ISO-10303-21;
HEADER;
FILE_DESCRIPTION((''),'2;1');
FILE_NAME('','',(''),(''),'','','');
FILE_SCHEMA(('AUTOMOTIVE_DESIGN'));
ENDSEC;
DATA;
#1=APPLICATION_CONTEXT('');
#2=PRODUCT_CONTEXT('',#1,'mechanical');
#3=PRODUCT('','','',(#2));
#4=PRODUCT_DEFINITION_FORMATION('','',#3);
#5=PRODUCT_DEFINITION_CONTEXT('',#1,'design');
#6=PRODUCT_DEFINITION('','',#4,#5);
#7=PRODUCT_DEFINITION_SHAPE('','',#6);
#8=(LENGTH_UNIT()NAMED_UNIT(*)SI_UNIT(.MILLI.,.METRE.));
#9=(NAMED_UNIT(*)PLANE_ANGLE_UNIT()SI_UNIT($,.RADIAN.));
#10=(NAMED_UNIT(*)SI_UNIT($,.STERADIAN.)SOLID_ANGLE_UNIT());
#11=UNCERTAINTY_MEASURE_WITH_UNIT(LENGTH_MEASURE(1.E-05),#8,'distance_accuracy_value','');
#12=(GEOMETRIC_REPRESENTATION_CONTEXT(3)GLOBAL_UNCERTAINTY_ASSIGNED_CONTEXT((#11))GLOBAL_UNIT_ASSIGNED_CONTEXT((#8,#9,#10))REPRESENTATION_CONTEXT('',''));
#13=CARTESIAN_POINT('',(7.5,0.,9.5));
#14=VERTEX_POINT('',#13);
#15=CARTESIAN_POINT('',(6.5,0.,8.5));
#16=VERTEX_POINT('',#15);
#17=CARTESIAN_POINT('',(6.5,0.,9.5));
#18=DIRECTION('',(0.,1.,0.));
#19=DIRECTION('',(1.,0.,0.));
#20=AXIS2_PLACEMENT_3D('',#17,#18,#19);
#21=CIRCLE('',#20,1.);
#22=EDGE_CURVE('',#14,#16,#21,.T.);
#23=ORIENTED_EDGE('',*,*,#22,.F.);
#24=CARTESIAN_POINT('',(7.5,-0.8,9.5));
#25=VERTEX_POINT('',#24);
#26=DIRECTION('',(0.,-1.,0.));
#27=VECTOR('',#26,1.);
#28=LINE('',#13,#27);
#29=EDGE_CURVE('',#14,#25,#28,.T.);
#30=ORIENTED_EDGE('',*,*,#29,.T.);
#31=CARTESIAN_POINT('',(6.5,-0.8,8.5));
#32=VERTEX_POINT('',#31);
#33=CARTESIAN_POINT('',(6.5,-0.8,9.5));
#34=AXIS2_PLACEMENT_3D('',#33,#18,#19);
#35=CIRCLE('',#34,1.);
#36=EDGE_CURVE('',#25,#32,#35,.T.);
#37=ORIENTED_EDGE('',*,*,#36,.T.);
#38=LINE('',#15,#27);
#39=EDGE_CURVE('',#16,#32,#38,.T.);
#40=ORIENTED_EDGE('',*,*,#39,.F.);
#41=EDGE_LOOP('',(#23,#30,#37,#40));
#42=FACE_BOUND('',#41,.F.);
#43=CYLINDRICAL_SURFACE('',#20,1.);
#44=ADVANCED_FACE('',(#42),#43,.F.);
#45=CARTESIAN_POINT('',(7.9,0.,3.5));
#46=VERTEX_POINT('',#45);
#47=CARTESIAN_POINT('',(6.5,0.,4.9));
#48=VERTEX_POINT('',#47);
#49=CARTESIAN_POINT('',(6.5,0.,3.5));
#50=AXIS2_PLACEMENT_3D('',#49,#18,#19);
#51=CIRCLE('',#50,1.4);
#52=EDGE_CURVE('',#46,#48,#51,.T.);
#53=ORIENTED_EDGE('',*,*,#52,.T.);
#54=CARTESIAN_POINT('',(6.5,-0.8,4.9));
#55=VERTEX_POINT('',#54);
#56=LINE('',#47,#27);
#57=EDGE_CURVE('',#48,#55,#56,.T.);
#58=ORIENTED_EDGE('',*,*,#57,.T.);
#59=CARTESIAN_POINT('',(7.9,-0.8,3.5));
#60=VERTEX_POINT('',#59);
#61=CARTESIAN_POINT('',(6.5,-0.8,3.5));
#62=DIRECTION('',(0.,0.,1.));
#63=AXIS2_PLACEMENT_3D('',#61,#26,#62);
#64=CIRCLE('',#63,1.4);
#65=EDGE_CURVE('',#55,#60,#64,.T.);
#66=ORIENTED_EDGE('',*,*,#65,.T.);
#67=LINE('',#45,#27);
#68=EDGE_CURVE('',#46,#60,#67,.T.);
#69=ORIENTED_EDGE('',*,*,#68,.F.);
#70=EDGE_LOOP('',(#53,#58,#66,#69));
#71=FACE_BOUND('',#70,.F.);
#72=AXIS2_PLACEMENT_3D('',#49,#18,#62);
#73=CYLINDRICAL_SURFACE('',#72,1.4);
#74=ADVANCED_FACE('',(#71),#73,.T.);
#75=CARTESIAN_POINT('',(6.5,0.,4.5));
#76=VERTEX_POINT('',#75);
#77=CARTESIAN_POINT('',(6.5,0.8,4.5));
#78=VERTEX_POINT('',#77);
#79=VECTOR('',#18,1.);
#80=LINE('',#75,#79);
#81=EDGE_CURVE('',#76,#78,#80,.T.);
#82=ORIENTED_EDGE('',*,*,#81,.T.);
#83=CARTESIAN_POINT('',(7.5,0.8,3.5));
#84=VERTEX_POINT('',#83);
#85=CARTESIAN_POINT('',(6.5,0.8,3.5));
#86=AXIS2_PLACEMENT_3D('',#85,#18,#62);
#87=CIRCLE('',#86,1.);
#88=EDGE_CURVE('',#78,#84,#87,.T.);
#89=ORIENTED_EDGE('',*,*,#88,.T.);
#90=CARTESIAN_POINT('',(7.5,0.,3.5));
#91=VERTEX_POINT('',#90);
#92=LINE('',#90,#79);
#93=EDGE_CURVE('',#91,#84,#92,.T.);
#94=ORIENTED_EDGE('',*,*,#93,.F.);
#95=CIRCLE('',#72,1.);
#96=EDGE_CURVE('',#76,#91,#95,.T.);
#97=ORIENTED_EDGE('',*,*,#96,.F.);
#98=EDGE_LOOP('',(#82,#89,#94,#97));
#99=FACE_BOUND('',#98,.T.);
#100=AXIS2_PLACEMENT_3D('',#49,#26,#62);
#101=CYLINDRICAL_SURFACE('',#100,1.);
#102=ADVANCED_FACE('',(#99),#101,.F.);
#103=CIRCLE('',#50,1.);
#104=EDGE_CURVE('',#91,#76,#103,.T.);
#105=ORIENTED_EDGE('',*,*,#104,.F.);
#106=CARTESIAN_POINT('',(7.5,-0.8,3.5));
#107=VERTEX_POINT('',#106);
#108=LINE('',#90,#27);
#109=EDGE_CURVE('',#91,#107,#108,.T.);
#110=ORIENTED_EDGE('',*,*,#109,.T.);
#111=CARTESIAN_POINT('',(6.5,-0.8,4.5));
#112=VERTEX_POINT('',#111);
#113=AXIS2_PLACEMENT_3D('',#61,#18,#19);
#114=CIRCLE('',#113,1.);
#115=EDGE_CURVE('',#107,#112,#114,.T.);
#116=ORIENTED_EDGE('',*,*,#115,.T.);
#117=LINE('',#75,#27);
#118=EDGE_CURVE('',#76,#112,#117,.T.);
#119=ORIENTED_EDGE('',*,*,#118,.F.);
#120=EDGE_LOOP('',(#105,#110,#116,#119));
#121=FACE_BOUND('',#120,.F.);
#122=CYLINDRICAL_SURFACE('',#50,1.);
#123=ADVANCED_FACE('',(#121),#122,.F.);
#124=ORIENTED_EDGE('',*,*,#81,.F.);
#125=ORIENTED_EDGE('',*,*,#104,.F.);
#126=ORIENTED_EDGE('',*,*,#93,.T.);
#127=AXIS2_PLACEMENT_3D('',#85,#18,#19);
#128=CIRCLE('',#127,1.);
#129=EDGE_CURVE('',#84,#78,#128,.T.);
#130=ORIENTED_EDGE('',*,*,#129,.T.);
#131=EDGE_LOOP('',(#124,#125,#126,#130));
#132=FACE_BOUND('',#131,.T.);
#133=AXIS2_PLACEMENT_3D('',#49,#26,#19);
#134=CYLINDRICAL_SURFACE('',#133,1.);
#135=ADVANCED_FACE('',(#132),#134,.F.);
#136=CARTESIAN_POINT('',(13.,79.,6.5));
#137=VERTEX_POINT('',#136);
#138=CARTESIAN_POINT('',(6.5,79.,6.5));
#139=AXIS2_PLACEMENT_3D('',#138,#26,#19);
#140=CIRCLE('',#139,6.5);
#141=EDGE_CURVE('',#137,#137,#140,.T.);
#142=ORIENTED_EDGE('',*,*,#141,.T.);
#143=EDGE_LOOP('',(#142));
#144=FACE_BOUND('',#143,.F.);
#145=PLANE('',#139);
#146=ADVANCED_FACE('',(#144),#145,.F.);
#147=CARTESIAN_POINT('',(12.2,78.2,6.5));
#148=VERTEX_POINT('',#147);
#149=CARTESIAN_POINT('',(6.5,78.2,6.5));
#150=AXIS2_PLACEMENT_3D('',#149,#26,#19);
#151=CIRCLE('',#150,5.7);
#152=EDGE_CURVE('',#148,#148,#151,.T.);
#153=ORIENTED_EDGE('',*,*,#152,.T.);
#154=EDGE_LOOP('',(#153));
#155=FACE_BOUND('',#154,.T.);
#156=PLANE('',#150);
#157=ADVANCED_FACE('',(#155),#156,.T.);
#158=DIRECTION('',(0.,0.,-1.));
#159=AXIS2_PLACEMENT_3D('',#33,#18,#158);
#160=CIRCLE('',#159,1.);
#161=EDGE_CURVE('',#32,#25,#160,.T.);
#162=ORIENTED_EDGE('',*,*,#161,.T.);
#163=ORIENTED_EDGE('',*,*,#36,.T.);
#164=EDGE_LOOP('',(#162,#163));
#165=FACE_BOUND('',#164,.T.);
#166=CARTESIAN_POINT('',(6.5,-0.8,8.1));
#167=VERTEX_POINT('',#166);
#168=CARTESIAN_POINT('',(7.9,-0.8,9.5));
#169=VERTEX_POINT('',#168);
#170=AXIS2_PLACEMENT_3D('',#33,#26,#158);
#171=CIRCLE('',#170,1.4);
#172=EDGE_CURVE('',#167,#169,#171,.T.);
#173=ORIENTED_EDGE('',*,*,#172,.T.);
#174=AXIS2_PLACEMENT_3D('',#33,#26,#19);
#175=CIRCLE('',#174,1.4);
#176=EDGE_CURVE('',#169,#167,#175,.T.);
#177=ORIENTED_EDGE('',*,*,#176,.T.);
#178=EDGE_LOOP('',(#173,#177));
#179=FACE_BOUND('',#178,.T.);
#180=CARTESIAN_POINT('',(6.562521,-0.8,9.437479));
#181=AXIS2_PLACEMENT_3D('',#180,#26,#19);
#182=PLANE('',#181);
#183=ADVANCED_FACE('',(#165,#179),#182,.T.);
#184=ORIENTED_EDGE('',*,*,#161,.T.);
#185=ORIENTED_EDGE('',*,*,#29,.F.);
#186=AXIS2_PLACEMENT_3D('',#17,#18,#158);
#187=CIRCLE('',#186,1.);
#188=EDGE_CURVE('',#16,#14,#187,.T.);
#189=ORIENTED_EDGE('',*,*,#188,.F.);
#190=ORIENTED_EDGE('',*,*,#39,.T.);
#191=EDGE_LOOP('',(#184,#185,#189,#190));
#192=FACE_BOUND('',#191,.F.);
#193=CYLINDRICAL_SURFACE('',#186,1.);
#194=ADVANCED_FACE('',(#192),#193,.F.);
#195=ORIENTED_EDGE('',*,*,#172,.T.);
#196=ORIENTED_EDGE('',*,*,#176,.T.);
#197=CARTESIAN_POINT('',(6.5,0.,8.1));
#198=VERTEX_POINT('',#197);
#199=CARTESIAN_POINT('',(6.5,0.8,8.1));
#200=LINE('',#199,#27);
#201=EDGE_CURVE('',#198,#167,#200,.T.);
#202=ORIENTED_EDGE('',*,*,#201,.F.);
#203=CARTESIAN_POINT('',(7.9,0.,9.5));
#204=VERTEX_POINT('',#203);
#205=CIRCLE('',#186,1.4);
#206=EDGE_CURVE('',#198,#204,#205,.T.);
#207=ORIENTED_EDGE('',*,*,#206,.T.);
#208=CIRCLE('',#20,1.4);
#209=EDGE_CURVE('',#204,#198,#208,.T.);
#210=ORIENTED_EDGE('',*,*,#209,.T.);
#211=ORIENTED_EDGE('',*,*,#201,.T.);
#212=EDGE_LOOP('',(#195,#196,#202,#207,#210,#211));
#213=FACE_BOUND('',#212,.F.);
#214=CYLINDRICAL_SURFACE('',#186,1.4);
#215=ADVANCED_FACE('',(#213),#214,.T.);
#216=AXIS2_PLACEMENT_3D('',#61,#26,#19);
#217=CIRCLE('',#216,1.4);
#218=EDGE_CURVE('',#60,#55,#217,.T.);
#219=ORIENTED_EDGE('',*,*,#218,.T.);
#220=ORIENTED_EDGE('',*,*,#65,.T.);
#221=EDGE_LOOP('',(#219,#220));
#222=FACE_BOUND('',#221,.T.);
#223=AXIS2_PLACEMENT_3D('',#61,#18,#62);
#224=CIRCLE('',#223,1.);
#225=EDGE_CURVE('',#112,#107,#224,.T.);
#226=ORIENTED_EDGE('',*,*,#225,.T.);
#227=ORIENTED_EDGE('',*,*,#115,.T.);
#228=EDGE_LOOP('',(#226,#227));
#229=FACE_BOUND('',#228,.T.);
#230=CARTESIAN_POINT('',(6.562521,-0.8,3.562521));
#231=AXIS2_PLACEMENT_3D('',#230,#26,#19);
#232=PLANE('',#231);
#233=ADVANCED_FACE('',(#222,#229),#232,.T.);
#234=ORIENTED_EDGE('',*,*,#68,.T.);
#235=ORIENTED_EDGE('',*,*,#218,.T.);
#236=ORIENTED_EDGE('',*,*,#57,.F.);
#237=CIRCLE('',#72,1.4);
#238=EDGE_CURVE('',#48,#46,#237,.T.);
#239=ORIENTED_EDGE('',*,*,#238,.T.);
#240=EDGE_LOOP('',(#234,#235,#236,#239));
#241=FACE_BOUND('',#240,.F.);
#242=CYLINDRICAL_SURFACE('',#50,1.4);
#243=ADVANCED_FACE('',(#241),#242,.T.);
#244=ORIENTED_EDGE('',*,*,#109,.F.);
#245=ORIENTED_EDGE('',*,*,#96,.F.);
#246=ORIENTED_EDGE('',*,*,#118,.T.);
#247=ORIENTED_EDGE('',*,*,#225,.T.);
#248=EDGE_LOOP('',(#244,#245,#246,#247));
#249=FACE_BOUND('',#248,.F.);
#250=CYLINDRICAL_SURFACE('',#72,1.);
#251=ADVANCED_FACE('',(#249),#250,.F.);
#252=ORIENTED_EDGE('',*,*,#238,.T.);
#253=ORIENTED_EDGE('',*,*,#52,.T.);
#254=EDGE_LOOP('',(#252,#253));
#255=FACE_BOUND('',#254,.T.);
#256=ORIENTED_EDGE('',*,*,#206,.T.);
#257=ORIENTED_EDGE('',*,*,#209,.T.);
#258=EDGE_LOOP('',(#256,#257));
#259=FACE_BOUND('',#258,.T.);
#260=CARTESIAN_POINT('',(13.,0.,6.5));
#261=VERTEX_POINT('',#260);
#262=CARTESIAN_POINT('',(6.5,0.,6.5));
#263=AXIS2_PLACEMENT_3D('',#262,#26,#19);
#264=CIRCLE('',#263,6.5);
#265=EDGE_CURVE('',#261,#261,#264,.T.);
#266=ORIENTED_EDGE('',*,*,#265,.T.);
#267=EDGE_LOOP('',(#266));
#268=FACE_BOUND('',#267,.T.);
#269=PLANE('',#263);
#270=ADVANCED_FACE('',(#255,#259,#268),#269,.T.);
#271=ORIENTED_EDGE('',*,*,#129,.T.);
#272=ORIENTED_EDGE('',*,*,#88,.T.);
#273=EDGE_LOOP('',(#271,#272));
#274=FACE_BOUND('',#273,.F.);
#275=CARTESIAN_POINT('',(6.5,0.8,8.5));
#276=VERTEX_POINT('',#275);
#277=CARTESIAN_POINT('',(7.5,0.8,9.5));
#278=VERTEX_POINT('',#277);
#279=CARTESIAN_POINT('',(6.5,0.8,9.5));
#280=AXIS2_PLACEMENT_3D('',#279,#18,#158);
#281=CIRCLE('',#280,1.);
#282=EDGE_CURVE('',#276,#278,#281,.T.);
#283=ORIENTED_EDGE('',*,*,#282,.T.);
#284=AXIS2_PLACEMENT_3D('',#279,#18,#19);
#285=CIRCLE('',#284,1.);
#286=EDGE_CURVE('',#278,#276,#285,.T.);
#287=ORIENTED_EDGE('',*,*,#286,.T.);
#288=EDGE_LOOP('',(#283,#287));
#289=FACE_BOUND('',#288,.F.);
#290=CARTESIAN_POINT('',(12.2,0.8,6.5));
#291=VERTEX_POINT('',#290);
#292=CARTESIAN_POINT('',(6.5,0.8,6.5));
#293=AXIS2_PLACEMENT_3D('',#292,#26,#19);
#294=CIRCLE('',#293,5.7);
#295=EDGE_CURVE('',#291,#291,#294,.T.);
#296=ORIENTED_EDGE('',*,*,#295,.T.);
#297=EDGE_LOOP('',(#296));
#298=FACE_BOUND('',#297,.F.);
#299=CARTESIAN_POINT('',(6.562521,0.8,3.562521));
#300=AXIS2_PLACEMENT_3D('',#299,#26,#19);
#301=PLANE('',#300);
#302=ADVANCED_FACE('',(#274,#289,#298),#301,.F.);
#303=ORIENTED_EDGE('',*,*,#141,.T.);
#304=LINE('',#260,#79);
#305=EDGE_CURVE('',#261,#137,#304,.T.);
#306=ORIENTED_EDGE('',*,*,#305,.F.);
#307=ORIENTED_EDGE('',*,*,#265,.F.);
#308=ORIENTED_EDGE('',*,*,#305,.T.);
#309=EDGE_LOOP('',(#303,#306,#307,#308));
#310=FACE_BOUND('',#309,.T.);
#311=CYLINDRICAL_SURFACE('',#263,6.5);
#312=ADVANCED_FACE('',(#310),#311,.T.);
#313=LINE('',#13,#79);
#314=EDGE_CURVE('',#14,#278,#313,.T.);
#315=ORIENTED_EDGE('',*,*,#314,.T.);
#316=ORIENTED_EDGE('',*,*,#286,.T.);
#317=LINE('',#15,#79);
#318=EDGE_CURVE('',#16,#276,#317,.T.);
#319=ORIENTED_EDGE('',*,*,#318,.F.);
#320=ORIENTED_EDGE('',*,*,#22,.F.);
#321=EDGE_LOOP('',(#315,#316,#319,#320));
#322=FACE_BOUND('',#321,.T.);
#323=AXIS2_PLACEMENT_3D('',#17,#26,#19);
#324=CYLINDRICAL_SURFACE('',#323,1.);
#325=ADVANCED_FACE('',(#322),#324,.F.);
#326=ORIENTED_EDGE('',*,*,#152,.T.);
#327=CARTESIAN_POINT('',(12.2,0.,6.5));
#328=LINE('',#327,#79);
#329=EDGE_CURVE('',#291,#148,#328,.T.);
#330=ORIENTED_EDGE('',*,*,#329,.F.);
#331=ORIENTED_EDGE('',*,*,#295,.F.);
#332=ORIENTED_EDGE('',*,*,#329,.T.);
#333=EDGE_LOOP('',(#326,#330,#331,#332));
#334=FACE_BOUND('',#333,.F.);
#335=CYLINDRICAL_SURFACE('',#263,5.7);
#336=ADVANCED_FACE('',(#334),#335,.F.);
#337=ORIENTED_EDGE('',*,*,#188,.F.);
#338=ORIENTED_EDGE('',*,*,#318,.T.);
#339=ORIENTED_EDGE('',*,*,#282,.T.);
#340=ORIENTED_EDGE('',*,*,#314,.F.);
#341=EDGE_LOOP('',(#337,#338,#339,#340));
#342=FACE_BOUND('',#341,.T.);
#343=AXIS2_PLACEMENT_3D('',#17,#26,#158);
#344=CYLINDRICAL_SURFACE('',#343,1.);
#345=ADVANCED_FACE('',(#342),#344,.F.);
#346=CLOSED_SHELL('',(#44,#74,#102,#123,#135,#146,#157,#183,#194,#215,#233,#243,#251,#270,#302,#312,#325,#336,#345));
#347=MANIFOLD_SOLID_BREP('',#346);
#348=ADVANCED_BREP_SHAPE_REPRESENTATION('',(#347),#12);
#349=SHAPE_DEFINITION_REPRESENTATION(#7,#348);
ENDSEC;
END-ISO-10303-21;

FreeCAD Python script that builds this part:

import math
import FreeCAD as App
import Part
import Sketcher
from FreeCAD import Vector
Q = App.Units.Quantity


def faces_at(feature, points):
    """Names of the faces that lie closest to the given points."""
    faces = feature.Shape.Faces
    near = lambda p: min(range(len(faces)), key=lambda i: faces[i].distToShape(Part.Vertex(*p))[0])
    return sorted({f"Face{near(p) + 1}" for p in points})

doc = App.newDocument("Part")
body = doc.addObject("PartDesign::Body", "Body")

# Sketch on XZ plane
sketch1 = doc.addObject("Sketcher::SketchObject", "Sketch")
body.addObject(sketch1)
sketch1.AttachmentSupport = (doc.XZ_Plane, [""])
sketch1.MapMode = "FlatFace"
sketch1.addGeometry(Part.Circle(Vector(6, 6, 0), Vector(0, 0, 1), 6), False)
sketch1.addConstraint([
    Sketcher.Constraint("Diameter", 0, Q("13 mm")),
    Sketcher.Constraint("DistanceX", -1, 1, 0, 3, Q("6.5 mm")),
    Sketcher.Constraint("DistanceY", -1, 1, 0, 3, Q("6.5 mm")),
])
pad1 = doc.addObject("PartDesign::Pad", "Pad")
body.addObject(pad1)
pad1.Profile = sketch1
pad1.Length = 79
pad1.Reversed = True
doc.recompute()

thickness = doc.addObject("PartDesign::Thickness", "Thickness")
body.addObject(thickness)
thickness.Base = (pad1, faces_at(pad1, [(6.5, 0, 6.5)]))
thickness.Value = 0.8
thickness.Reversed = True
thickness.Join = "Arc"

# Sketch on XZ plane
sketch2 = doc.addObject("Sketcher::SketchObject", "Sketch001")
body.addObject(sketch2)
sketch2.AttachmentSupport = (doc.XZ_Plane, [""])
sketch2.MapMode = "FlatFace"
sketch2.addGeometry([
    Part.Circle(Vector(6.5, 6.5, 0), Vector(0, 0, 1), 6.5),  # 0
    Part.ArcOfCircle(Part.Circle(Vector(6.5, 3.5, 0), Vector(0, 0, 1), 1.4), math.radians(0), math.radians(90)),  # 1
    Part.ArcOfCircle(Part.Circle(Vector(6.5, 3.5, 0), Vector(0, 0, 1), 1.4), math.radians(90), math.radians(360)),  # 2
    Part.ArcOfCircle(Part.Circle(Vector(6.5, 9.5, 0), Vector(0, 0, 1), 1.4), math.radians(-90), math.radians(0)),  # 3
    Part.ArcOfCircle(Part.Circle(Vector(6.5, 9.5, 0), Vector(0, 0, 1), 1.4), math.radians(0), math.radians(270)),  # 4
], False)
sketch2.addConstraint([
    Sketcher.Constraint("Tangent", 1, 1, 2, 2),
    Sketcher.Constraint("Coincident", 2, 1, 1, 2),
    Sketcher.Constraint("Tangent", 3, 1, 4, 2),
    Sketcher.Constraint("Coincident", 4, 1, 3, 2),
    Sketcher.Constraint("Equal", 2, 3),
    Sketcher.Constraint("Horizontal", 2, 3, 1, 1),
    Sketcher.Constraint("Horizontal", 3, 3, 4, 1),
    Sketcher.Constraint("Vertical", 0, 3, 1, 3),
    Sketcher.Constraint("Vertical", 2, 3, 3, 3),
    Sketcher.Constraint("Vertical", 4, 3, 2, 1),
    Sketcher.Constraint("Vertical", 2, 1, 3, 1),
    Sketcher.Constraint("Diameter", 0, Q("13 mm")),
    Sketcher.Constraint("Radius", 1, Q("1.4 mm")),
    Sketcher.Constraint("DistanceY", 1, 3, 0, 3, Q("3 mm")),
    Sketcher.Constraint("DistanceY", 0, 3, 3, 3, Q("3 mm")),
    Sketcher.Constraint("DistanceX", -1, 1, 0, 3, Q("6.5 mm")),
    Sketcher.Constraint("DistanceY", -1, 1, 0, 3, Q("6.5 mm")),
])
pad2 = doc.addObject("PartDesign::Pad", "Pad001")
body.addObject(pad2)
pad2.Profile = sketch2
pad2.Length = 0.8
pad2.Reversed = True

# Sketch on XZ plane
sketch3 = doc.addObject("Sketcher::SketchObject", "Sketch002")
body.addObject(sketch3)
sketch3.AttachmentSupport = (doc.XZ_Plane, [""])
sketch3.MapMode = "FlatFace"
sketch3.addGeometry([
    Part.ArcOfCircle(Part.Circle(Vector(6.5, 9.5, 0), Vector(0, 0, 1), 1.4), math.radians(-90), math.radians(0)),  # 0
    Part.ArcOfCircle(Part.Circle(Vector(6.5, 9.5, 0), Vector(0, 0, 1), 1.4), math.radians(0), math.radians(270)),  # 1
    Part.ArcOfCircle(Part.Circle(Vector(6.5, 9.5, 0), Vector(0, 0, 1), 1), math.radians(0), math.radians(270)),  # 2
    Part.ArcOfCircle(Part.Circle(Vector(6.5, 9.5, 0), Vector(0, 0, 1), 1), math.radians(-90), math.radians(0)),  # 3
    Part.ArcOfCircle(Part.Circle(Vector(6.5, 3.5, 0), Vector(0, 0, 1), 1.4), math.radians(0), math.radians(90)),  # 4
    Part.ArcOfCircle(Part.Circle(Vector(6.5, 3.5, 0), Vector(0, 0, 1), 1.4), math.radians(90), math.radians(360)),  # 5
    Part.ArcOfCircle(Part.Circle(Vector(6.5, 3.5, 0), Vector(0, 0, 1), 1), math.radians(0), math.radians(90)),  # 6
    Part.ArcOfCircle(Part.Circle(Vector(6.5, 3.5, 0), Vector(0, 0, 1), 1), math.radians(90), math.radians(360)),  # 7
], False)
sketch3.addConstraint([
    Sketcher.Constraint("Tangent", 0, 1, 1, 2),
    Sketcher.Constraint("Coincident", 1, 1, 0, 2),
    Sketcher.Constraint("Tangent", 2, 1, 3, 2),
    Sketcher.Constraint("Coincident", 3, 1, 2, 2),
    Sketcher.Constraint("Tangent", 4, 1, 5, 2),
    Sketcher.Constraint("Coincident", 5, 1, 4, 2),
    Sketcher.Constraint("Tangent", 6, 1, 7, 2),
    Sketcher.Constraint("Coincident", 7, 1, 6, 2),
    Sketcher.Constraint("Coincident", 2, 3, 0, 3),
    Sketcher.Constraint("Coincident", 6, 3, 4, 3),
    Sketcher.Constraint("Equal", 1, 4),
    Sketcher.Constraint("Equal", 3, 6),
    Sketcher.Constraint("Horizontal", 3, 3, 1, 1),
    Sketcher.Constraint("Horizontal", 1, 1, 2, 1),
    Sketcher.Constraint("Horizontal", 7, 3, 4, 1),
    Sketcher.Constraint("Horizontal", 4, 1, 6, 1),
    Sketcher.Constraint("Vertical", 3, 3, 4, 3),
    Sketcher.Constraint("Vertical", 7, 3, 0, 1),
    Sketcher.Constraint("Vertical", 0, 1, 3, 1),
    Sketcher.Constraint("Vertical", 3, 1, 5, 1),
    Sketcher.Constraint("Vertical", 5, 1, 7, 1),
    Sketcher.Constraint("Radius", 2, Q("1 mm")),
    Sketcher.Constraint("Radius", 0, Q("1.4 mm")),
    Sketcher.Constraint("DistanceY", 4, 3, 0, 3, Q("6 mm")),
    Sketcher.Constraint("DistanceX", -1, 1, 0, 3, Q("6.5 mm")),
    Sketcher.Constraint("DistanceY", -1, 1, 0, 3, Q("9.5 mm")),
])
pad3 = doc.addObject("PartDesign::Pad", "Pad002")
body.addObject(pad3)
pad3.Profile = sketch3
pad3.Length = 1.6
pad3.Midplane = True

doc.recompute()
